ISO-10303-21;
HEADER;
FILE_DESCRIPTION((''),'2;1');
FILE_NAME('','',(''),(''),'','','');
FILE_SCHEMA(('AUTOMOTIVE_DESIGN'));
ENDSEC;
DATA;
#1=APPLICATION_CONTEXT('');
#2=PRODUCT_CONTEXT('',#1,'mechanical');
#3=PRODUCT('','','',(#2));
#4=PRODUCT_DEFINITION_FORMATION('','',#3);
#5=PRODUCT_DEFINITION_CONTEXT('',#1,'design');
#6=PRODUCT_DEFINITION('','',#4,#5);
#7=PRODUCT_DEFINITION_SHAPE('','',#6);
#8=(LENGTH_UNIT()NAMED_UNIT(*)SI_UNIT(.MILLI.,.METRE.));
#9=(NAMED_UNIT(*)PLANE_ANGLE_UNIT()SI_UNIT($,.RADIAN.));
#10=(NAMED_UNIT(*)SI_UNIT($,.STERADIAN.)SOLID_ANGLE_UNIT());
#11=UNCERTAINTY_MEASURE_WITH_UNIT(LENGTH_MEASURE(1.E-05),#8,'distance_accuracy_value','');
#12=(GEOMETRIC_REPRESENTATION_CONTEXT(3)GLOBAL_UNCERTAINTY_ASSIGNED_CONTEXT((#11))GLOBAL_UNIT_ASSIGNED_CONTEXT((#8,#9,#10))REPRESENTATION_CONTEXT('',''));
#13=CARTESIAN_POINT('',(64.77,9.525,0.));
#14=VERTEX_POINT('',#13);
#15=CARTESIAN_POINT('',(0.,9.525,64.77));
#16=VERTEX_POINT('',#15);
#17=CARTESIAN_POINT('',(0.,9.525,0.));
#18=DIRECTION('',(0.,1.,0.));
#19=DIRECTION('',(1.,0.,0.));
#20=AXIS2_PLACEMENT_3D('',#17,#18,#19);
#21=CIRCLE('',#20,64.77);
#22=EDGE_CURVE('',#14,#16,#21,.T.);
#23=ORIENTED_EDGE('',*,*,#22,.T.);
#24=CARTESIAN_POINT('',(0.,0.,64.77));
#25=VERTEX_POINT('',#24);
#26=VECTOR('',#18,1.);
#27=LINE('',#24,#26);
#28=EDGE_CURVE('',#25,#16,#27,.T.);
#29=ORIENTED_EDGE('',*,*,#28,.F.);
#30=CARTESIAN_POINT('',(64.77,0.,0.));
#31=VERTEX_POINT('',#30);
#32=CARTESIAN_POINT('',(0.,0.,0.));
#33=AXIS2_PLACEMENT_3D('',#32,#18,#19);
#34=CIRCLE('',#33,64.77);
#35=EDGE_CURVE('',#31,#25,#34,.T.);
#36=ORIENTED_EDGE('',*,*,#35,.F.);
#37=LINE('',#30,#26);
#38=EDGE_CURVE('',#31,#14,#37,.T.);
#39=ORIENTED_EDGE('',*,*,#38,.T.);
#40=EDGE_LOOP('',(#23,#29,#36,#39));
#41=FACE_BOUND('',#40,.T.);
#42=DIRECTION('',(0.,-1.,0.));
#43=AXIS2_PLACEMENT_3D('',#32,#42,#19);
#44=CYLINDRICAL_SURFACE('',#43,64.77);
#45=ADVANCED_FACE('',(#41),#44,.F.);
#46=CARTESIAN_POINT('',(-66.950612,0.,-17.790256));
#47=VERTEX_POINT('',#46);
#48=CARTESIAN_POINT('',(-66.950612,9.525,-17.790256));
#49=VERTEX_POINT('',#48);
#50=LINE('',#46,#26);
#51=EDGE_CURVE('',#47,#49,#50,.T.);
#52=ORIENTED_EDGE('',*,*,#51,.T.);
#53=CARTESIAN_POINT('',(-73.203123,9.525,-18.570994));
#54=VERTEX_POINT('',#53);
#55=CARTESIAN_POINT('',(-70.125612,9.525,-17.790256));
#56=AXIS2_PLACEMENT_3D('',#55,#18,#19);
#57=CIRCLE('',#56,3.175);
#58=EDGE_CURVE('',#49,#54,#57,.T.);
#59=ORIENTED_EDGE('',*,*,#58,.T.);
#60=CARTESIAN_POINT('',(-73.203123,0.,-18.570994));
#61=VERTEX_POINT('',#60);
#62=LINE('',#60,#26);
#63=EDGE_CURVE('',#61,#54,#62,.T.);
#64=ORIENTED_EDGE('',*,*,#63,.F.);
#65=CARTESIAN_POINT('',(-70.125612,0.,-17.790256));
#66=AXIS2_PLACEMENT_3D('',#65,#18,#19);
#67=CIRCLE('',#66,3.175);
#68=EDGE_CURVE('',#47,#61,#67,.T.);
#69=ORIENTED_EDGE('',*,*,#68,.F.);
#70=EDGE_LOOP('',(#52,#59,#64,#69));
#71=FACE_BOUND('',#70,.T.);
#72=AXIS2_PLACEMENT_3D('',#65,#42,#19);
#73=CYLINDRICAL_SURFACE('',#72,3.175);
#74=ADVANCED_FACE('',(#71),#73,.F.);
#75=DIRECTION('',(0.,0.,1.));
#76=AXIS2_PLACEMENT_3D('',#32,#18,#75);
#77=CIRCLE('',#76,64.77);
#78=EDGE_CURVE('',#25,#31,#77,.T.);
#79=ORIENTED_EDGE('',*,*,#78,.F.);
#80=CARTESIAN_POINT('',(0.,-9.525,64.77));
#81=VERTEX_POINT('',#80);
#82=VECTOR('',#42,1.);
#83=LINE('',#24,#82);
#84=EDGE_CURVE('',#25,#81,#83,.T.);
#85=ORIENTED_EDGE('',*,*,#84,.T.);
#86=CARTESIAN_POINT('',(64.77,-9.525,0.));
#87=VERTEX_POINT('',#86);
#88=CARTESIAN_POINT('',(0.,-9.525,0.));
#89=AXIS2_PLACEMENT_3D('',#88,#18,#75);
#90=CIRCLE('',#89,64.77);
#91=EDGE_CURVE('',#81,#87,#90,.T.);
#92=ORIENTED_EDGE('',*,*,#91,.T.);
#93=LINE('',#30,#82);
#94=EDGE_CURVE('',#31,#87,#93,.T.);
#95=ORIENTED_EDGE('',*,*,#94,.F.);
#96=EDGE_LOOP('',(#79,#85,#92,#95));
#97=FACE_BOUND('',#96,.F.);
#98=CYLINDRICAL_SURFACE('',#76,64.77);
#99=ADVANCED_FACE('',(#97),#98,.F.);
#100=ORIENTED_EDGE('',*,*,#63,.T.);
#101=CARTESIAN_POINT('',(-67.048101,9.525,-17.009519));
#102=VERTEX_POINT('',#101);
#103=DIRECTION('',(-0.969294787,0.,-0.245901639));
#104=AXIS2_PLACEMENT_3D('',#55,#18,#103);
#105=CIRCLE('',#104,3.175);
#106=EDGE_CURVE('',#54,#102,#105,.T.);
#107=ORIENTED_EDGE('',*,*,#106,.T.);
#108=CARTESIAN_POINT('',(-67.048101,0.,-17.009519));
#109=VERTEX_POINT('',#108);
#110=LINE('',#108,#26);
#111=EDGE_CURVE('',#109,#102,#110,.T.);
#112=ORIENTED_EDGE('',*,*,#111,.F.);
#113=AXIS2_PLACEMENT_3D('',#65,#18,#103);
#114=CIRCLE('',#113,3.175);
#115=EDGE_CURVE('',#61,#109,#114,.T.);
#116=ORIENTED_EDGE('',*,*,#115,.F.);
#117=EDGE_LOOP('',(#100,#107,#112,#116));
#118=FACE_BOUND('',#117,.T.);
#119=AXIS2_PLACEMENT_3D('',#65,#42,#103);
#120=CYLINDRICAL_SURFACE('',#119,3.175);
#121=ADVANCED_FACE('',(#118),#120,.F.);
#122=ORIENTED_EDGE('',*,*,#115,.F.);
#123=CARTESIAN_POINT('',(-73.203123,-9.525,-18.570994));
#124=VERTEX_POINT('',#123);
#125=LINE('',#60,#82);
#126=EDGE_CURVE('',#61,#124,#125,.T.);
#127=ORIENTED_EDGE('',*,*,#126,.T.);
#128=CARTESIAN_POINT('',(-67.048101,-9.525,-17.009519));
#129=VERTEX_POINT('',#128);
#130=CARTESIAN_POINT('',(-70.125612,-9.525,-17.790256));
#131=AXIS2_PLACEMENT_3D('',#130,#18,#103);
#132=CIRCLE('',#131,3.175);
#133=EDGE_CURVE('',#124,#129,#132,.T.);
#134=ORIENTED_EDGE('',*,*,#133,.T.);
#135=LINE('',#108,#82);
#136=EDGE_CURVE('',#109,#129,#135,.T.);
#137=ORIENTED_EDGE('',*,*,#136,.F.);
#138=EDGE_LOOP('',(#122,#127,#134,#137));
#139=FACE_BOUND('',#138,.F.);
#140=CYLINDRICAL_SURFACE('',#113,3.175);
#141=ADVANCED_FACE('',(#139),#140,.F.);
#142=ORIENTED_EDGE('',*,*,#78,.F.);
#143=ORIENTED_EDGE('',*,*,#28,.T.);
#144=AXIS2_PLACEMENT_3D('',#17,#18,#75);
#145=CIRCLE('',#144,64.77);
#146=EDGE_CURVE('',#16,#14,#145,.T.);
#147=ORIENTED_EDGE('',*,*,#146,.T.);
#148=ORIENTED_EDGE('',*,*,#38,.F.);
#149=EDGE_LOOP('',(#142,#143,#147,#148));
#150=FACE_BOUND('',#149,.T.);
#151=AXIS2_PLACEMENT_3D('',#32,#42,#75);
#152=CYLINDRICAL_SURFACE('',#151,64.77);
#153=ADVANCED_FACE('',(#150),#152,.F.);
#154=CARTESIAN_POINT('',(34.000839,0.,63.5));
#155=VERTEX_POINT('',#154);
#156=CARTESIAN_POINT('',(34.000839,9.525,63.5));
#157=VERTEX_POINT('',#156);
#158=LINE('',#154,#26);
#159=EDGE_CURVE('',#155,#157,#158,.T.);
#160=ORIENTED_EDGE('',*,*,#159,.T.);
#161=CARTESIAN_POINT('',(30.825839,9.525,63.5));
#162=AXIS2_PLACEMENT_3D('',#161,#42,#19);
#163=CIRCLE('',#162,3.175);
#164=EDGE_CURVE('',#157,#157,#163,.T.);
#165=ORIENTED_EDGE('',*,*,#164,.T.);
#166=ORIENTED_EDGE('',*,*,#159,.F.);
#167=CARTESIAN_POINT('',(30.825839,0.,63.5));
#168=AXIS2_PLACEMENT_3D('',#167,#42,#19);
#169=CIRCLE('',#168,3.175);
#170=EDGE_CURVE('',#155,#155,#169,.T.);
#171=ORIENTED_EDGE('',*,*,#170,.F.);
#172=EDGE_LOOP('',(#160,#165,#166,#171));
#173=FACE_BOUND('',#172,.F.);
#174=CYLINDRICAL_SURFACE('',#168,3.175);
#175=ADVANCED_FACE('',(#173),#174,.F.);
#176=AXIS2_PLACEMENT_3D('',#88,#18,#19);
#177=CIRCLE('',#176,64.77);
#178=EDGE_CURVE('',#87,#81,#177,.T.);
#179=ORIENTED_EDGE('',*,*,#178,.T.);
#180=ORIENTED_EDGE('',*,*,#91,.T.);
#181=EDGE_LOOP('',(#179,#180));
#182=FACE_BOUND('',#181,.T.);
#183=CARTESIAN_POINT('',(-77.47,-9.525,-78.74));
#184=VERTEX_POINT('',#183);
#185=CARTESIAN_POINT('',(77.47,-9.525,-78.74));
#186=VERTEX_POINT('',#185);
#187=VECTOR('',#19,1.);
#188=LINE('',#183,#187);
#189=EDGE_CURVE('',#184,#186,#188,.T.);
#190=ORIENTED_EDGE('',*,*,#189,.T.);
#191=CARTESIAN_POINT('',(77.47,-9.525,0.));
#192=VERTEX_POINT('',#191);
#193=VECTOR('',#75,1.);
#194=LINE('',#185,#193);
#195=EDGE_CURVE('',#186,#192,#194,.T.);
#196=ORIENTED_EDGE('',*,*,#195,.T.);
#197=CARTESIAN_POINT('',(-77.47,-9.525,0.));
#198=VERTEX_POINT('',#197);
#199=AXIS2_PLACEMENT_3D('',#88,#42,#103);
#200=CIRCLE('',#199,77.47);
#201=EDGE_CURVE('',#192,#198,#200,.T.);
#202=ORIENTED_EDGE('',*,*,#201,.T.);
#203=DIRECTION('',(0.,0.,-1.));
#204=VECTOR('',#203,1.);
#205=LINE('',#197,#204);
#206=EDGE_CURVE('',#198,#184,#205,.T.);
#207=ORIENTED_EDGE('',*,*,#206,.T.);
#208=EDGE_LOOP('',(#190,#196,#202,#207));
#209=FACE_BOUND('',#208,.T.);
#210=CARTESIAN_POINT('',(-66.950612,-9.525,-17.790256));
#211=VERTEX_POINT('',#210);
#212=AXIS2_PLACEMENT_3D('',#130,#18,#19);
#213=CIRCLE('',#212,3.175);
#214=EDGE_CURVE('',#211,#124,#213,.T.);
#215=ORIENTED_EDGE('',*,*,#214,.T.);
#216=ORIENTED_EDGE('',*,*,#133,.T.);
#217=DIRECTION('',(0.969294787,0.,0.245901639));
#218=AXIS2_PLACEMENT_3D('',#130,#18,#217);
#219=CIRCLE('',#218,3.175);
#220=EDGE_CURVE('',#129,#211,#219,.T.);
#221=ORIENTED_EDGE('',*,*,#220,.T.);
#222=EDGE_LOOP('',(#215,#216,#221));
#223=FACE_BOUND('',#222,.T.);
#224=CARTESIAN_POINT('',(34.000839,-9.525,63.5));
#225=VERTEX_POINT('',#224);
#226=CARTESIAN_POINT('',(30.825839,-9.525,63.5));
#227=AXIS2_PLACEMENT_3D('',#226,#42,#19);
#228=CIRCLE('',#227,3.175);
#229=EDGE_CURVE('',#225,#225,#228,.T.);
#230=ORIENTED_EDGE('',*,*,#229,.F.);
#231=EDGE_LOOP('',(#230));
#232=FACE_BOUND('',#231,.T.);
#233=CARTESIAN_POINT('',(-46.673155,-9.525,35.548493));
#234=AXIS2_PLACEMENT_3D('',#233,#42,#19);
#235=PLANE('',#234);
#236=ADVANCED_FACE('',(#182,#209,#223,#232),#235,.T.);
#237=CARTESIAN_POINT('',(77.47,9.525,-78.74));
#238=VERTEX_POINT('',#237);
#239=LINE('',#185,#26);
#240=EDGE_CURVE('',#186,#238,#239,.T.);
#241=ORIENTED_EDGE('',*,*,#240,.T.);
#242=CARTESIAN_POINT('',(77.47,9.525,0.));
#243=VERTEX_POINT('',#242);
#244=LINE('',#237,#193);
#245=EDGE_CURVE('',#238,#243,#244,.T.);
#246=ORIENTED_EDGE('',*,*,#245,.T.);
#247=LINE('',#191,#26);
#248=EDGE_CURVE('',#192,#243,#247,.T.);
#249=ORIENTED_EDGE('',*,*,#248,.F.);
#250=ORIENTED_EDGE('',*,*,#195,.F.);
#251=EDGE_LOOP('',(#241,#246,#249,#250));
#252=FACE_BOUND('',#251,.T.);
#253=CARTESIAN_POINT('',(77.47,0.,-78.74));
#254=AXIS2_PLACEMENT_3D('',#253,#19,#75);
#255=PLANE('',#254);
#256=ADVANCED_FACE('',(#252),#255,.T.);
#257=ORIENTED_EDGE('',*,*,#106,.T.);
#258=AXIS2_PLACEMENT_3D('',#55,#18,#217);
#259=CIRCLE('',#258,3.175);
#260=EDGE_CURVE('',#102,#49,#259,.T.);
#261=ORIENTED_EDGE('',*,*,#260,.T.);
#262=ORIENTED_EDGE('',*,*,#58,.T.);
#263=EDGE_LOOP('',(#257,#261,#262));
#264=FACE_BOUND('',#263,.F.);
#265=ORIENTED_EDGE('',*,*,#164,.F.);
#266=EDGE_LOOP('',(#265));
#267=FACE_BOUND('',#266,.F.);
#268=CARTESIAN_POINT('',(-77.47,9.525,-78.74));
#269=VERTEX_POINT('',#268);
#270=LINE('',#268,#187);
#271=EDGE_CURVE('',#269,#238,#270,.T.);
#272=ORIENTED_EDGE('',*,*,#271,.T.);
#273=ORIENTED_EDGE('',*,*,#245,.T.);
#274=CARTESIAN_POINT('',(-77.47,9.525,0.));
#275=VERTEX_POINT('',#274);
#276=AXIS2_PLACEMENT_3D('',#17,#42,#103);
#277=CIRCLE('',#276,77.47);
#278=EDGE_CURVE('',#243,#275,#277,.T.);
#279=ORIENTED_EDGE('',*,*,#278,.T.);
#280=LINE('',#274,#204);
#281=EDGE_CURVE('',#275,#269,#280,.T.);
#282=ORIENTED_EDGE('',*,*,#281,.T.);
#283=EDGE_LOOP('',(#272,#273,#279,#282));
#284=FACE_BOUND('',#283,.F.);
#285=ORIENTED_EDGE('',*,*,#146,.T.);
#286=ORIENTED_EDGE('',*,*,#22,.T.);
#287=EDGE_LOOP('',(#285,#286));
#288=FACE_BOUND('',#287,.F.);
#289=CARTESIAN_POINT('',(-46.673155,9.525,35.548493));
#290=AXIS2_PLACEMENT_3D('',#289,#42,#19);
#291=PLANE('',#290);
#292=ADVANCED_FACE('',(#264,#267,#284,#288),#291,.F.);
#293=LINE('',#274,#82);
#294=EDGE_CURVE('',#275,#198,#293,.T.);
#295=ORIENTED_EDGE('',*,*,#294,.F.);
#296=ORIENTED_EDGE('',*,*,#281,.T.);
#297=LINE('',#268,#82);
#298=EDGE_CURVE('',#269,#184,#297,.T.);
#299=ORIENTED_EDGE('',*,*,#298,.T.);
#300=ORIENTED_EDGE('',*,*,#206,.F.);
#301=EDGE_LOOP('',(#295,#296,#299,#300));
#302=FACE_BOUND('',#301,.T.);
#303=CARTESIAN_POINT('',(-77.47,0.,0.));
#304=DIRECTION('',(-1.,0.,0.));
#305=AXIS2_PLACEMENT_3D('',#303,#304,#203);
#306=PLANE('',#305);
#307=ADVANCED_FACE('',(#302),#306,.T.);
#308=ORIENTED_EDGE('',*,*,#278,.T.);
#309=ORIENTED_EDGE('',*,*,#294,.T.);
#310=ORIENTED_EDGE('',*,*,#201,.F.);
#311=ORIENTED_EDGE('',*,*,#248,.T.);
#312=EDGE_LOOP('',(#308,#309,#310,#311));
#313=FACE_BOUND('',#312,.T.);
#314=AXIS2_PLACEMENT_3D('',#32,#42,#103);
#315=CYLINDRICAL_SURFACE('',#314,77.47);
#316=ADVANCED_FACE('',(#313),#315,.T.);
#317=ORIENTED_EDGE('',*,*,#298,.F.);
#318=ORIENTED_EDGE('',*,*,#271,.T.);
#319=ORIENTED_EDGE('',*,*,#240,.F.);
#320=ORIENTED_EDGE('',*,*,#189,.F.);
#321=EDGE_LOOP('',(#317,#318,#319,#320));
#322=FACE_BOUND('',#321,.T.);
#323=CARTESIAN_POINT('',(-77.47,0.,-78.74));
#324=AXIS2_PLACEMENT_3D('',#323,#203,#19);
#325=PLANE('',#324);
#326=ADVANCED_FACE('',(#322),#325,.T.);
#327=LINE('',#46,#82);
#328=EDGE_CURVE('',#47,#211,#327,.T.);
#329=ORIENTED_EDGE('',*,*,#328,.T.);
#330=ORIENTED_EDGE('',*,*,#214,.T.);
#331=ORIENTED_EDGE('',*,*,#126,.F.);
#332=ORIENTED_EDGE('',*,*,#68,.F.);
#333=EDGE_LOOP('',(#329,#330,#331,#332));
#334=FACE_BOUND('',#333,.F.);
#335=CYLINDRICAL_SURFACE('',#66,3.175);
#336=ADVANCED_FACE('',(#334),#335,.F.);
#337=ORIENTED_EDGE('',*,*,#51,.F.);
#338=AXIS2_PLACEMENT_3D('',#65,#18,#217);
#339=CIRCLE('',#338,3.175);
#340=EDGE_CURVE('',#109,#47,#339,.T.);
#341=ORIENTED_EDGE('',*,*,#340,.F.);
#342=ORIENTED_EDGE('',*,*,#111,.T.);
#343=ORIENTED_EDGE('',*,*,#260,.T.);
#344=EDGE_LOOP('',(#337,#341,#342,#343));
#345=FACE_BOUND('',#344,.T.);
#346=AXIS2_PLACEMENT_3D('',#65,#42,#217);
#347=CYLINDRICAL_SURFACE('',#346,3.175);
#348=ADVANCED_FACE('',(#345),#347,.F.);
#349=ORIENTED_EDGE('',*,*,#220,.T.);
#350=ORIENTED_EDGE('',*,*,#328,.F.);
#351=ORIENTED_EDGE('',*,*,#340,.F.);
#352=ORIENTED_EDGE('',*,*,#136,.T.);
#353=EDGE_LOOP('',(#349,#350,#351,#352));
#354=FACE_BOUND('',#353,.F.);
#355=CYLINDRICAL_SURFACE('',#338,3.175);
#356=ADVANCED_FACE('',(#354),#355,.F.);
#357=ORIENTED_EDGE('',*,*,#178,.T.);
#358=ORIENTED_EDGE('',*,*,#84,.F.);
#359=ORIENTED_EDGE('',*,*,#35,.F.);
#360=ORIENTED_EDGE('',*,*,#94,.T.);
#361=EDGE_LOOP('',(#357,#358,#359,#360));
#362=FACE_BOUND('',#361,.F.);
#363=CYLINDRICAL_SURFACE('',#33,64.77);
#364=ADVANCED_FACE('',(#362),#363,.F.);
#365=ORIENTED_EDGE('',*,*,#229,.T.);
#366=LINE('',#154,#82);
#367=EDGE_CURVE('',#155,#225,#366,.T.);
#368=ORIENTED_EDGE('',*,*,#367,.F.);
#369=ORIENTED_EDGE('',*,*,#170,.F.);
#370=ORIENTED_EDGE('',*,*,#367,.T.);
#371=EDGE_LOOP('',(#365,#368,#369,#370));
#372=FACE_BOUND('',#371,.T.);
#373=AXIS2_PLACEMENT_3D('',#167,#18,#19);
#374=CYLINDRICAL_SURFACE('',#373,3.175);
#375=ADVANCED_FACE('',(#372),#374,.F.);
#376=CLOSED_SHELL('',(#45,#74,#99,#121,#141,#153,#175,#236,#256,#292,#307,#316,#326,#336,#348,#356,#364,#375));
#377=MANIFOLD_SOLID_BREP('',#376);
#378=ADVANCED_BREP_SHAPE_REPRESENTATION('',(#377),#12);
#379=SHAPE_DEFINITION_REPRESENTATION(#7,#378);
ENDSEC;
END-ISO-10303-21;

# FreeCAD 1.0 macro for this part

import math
import FreeCAD as App
import Part
import Sketcher
Q = App.Units.Quantity

doc = App.newDocument("Part")
params = doc.addObject("Spreadsheet::Sheet", "Params")
for row, (alias, value) in enumerate([
    ("sketch1_diameter", "0.25 in"),
    ("sketch1_radius", "3.05 in"),
    ("sketch1_radius2", "2.55 in"),
    ("sketch1_height", "3.1 in"),
    ("pad1_length", "0.375 in"),
    ("pad1_length2", "0.375 in"),
], start=1):
    params.set(f"A{row}", alias)
    params.set(f"B{row}", "=" + value)
    params.setAlias(f"B{row}", alias)

body = doc.addObject("PartDesign::Body", "Body")

# Sketch on XZ plane
sketch1 = body.newObject("Sketcher::SketchObject", "Sketch")
sketch1.AttachmentSupport = (doc.getObject("XZ_Plane"), [""])
sketch1.MapMode = "FlatFace"
sketch1.addGeometry(Part.ArcOfCircle(Part.Circle(App.Vector(0, 0, 0), App.Vector(0, 0, 1), 77.5), math.radians(0), math.radians(180)), False)
sketch1.addGeometry(Part.LineSegment(App.Vector(-77.5, 0, 0), App.Vector(-77.5, -78.7, 0)), False)
sketch1.addGeometry(Part.LineSegment(App.Vector(-77.5, -78.7, 0), App.Vector(77.5, -78.7, 0)), False)
sketch1.addGeometry(Part.LineSegment(App.Vector(77.5, -78.7, 0), App.Vector(77.5, 0, 0)), False)
sketch1.addGeometry(Part.ArcOfCircle(Part.Circle(App.Vector(-70.1, -17.8, 0), App.Vector(0, 0, 1), 3.2), math.radians(14), math.radians(194)), False)
sketch1.addGeometry(Part.ArcOfCircle(Part.Circle(App.Vector(-70.1, -17.8, 0), App.Vector(0, 0, 1), 3.2), math.radians(0), math.radians(14.24)), False)
sketch1.addGeometry(Part.ArcOfCircle(Part.Circle(App.Vector(-70.1, -17.8, 0), App.Vector(0, 0, 1), 3.2), math.radians(-166), math.radians(0)), False)
sketch1.addGeometry(Part.ArcOfCircle(Part.Circle(App.Vector(0, 0, 0), App.Vector(0, 0, 1), 64.8), math.radians(0), math.radians(90)), False)
sketch1.addGeometry(Part.ArcOfCircle(Part.Circle(App.Vector(0, 0, 0), App.Vector(0, 0, 1), 64.8), math.radians(90), math.radians(360)), False)
sketch1.addGeometry(Part.Circle(App.Vector(30.8, 63.5, 0), App.Vector(0, 0, 1), 3.2), False)
sketch1.addConstraint(Sketcher.Constraint("Tangent", 0, 2, 1, 1))
sketch1.addConstraint(Sketcher.Constraint("Coincident", 1, 2, 2, 1))
sketch1.addConstraint(Sketcher.Constraint("Coincident", 2, 2, 3, 1))
sketch1.addConstraint(Sketcher.Constraint("Tangent", 3, 2, 0, 1))
sketch1.addConstraint(Sketcher.Constraint("Tangent", 4, 1, 5, 2))
sketch1.addConstraint(Sketcher.Constraint("Tangent", 5, 1, 6, 2))
sketch1.addConstraint(Sketcher.Constraint("Tangent", 6, 1, 4, 2))
sketch1.addConstraint(Sketcher.Constraint("Tangent", 7, 1, 8, 2))
sketch1.addConstraint(Sketcher.Constraint("Coincident", 8, 1, 7, 2))
sketch1.addConstraint(Sketcher.Constraint("Vertical", 1))
sketch1.addConstraint(Sketcher.Constraint("Horizontal", 2))
sketch1.addConstraint(Sketcher.Constraint("Vertical", 3))
sketch1.addConstraint(Sketcher.Constraint("Coincident", 0, 3, -1, 1))
sketch1.addConstraint(Sketcher.Constraint("Coincident", 7, 3, -1, 1))
sketch1.addConstraint(Sketcher.Constraint("Equal", 6, 9))
sketch1.addConstraint(Sketcher.Constraint("PointOnObject", 7, 1, -1))
sketch1.addConstraint(Sketcher.Constraint("PointOnObject", 8, 1, -2))
sketch1.addConstraint(Sketcher.Constraint("Horizontal", 6, 3, 5, 1))
sketch1.addConstraint(Sketcher.Constraint("Diameter", 9, Q("0.25 in")))
sketch1.addConstraint(Sketcher.Constraint("Radius", 0, Q("3.05 in")))
sketch1.addConstraint(Sketcher.Constraint("Radius", 7, Q("2.55 in")))
sketch1.addConstraint(Sketcher.Constraint("DistanceY", 1, 2, 1, 1, Q("3.1 in")))
sketch1.addConstraint(Sketcher.Constraint("DistanceY", -1, 1, 9, 3, Q("2.5 in")))
sketch1.addConstraint(Sketcher.Constraint("DistanceX", 4, 1, -1, 1, 67.048101))
sketch1.addConstraint(Sketcher.Constraint("DistanceX", 4, 3, -1, 1, 70.125612))
sketch1.addConstraint(Sketcher.Constraint("DistanceX", -1, 1, 9, 3, 30.825839))
sketch1.addConstraint(Sketcher.Constraint("DistanceY", 4, 1, -1, 1, 17.009519))
sketch1.addConstraint(Sketcher.Constraint("DistanceX", 6, 1, 4, 3, 3.077511))
sketch1.setExpression("Constraints[18]", "Params.sketch1_diameter")
sketch1.setExpression("Constraints[19]", "Params.sketch1_radius")
sketch1.setExpression("Constraints[20]", "Params.sketch1_radius2")
sketch1.setExpression("Constraints[21]", "Params.sketch1_height")
pad1 = body.newObject("PartDesign::Pad", "Pad")
pad1.Profile = sketch1
pad1.Type = "TwoLengths"
pad1.setExpression("Length", "Params.pad1_length")
pad1.setExpression("Length2", "Params.pad1_length2")

doc.recompute()
